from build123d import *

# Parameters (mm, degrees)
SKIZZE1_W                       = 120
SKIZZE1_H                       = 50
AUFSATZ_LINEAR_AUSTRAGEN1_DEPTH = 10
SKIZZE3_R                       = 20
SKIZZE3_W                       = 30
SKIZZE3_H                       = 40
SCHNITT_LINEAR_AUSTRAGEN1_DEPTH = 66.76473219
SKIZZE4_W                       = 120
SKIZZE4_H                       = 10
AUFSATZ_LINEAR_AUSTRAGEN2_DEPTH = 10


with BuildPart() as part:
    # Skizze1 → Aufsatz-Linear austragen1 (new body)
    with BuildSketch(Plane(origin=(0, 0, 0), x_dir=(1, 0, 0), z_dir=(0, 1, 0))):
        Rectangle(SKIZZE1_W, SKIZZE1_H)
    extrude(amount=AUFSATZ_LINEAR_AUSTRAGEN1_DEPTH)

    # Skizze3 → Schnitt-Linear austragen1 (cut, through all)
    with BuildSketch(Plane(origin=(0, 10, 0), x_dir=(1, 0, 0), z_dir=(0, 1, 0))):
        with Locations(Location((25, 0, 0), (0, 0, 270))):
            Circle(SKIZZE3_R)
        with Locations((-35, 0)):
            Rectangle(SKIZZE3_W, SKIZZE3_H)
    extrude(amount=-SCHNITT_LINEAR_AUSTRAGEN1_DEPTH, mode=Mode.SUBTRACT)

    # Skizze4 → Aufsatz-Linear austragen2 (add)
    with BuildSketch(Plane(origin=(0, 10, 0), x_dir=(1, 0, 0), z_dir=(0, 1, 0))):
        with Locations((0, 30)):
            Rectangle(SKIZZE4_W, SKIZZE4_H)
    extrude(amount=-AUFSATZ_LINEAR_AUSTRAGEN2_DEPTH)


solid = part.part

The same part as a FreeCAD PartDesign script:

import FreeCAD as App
import Part
import Sketcher


def add_polygon(sketch, points):
    """Adds a closed chain of lines whose ends are joined by coincident constraints."""
    first, n = sketch.GeometryCount, len(points)
    for a, b in zip(points, points[1:] + points[:1]):
        sketch.addGeometry(Part.LineSegment(App.Vector(*a, 0), App.Vector(*b, 0)), False)
    for i in range(n):
        sketch.addConstraint(Sketcher.Constraint("Coincident", first + i, 2, first + (i + 1) % n, 1))

doc = App.newDocument("Part")
params = doc.addObject("Spreadsheet::Sheet", "Params")
for row, (alias, value) in enumerate([
    ("sketch1_width", "120 mm"),
    ("sketch1_height", "50 mm"),
    ("pad1_length", "10 mm"),
    ("sketch2_diameter", "40 mm"),
    ("sketch2_width", "30 mm"),
    ("sketch2_height", "40 mm"),
    ("sketch3_width", "120 mm"),
    ("sketch3_height", "10 mm"),
    ("pad2_length", "10 mm"),
], start=1):
    params.set(f"A{row}", alias)
    params.set(f"B{row}", "=" + value)
    params.setAlias(f"B{row}", alias)

body = doc.addObject("PartDesign::Body", "Body")

# Sketch on XZ plane
sketch1 = doc.addObject("Sketcher::SketchObject", "Sketch")
body.addObject(sketch1)
sketch1.AttachmentSupport = (doc.XZ_Plane, [""])
sketch1.MapMode = "FlatFace"
add_polygon(sketch1, [(-60, -25), (-60, 25), (60, 25), (60, -25)])  # lines 0-3
sketch1.addConstraint([
    Sketcher.Constraint("Vertical", 0),
    Sketcher.Constraint("Horizontal", 1),
    Sketcher.Constraint("Vertical", 2),
    Sketcher.Constraint("Horizontal", 3),
    Sketcher.Constraint("Symmetric", 0, 2, 2, 2, -1, 1),
    Sketcher.Constraint("DistanceX", 1, 1, 1, 2, 120.0),
    Sketcher.Constraint("DistanceY", 0, 1, 0, 2, 50.0),
])
sketch1.setExpression("Constraints[9]", "Params.sketch1_width")
sketch1.setExpression("Constraints[10]", "Params.sketch1_height")
pad1 = doc.addObject("PartDesign::Pad", "Pad")
body.addObject(pad1)
pad1.Profile = sketch1
pad1.setExpression("Length", "Params.pad1_length")
pad1.Reversed = True

# Sketch on XZ plane
sketch2 = doc.addObject("Sketcher::SketchObject", "Sketch001")
body.addObject(sketch2)
sketch2.AttachmentSupport = (doc.XZ_Plane, [""])
sketch2.MapMode = "FlatFace"
sketch2.AttachmentOffset = App.Placement(App.Vector(0, 0, -10), App.Rotation())
sketch2.addGeometry(Part.Circle(App.Vector(25, 0, 0), App.Vector(0, 0, 1), 20), False)  # 0
add_polygon(sketch2, [(-50, -20), (-50, 20), (-20, 20), (-20, -20)])  # lines 1-4
sketch2.addConstraint([
    Sketcher.Constraint("Vertical", 1),
    Sketcher.Constraint("Horizontal", 2),
    Sketcher.Constraint("Vertical", 3),
    Sketcher.Constraint("Horizontal", 4),
    Sketcher.Constraint("PointOnObject", 0, 3, -1),
    Sketcher.Constraint("Diameter", 0, 40.0),
    Sketcher.Constraint("DistanceX", 2, 1, 2, 2, 30.0),
    Sketcher.Constraint("DistanceY", 1, 1, 1, 2, 40.0),
    Sketcher.Constraint("DistanceX", -1, 1, 0, 3, 25.0),
    Sketcher.Constraint("DistanceX", 1, 2, -1, 1, 50.0),
    Sketcher.Constraint("DistanceY", -1, 1, 1, 2, 20.0),
])
sketch2.setExpression("Constraints[9]", "Params.sketch2_diameter")
sketch2.setExpression("Constraints[10]", "Params.sketch2_width")
sketch2.setExpression("Constraints[11]", "Params.sketch2_height")
pocket1 = doc.addObject("PartDesign::Pocket", "Pocket")
body.addObject(pocket1)
pocket1.Profile = sketch2
pocket1.Type = "ThroughAll"
pocket1.Reversed = True

# Sketch on XZ plane
sketch3 = doc.addObject("Sketcher::SketchObject", "Sketch002")
body.addObject(sketch3)
sketch3.AttachmentSupport = (doc.XZ_Plane, [""])
sketch3.MapMode = "FlatFace"
sketch3.AttachmentOffset = App.Placement(App.Vector(0, 0, -10), App.Rotation())
add_polygon(sketch3, [(-60, -35), (-60, -25), (60, -25), (60, -35)])  # lines 0-3
sketch3.addConstraint([
    Sketcher.Constraint("Vertical", 0),
    Sketcher.Constraint("Horizontal", 1),
    Sketcher.Constraint("Vertical", 2),
    Sketcher.Constraint("Horizontal", 3),
    Sketcher.Constraint("DistanceX", 1, 1, 1, 2, 120.0),
    Sketcher.Constraint("DistanceY", 0, 1, 0, 2, 10.0),
    Sketcher.Constraint("DistanceX", 0, 2, -1, 1, 60.0),
    Sketcher.Constraint("DistanceY", 0, 2, -1, 1, 25.0),
])
sketch3.setExpression("Constraints[8]", "Params.sketch3_width")
sketch3.setExpression("Constraints[9]", "Params.sketch3_height")
pad2 = doc.addObject("PartDesign::Pad", "Pad001")
body.addObject(pad2)
pad2.Profile = sketch3
pad2.setExpression("Length", "Params.pad2_length")

doc.recompute()
